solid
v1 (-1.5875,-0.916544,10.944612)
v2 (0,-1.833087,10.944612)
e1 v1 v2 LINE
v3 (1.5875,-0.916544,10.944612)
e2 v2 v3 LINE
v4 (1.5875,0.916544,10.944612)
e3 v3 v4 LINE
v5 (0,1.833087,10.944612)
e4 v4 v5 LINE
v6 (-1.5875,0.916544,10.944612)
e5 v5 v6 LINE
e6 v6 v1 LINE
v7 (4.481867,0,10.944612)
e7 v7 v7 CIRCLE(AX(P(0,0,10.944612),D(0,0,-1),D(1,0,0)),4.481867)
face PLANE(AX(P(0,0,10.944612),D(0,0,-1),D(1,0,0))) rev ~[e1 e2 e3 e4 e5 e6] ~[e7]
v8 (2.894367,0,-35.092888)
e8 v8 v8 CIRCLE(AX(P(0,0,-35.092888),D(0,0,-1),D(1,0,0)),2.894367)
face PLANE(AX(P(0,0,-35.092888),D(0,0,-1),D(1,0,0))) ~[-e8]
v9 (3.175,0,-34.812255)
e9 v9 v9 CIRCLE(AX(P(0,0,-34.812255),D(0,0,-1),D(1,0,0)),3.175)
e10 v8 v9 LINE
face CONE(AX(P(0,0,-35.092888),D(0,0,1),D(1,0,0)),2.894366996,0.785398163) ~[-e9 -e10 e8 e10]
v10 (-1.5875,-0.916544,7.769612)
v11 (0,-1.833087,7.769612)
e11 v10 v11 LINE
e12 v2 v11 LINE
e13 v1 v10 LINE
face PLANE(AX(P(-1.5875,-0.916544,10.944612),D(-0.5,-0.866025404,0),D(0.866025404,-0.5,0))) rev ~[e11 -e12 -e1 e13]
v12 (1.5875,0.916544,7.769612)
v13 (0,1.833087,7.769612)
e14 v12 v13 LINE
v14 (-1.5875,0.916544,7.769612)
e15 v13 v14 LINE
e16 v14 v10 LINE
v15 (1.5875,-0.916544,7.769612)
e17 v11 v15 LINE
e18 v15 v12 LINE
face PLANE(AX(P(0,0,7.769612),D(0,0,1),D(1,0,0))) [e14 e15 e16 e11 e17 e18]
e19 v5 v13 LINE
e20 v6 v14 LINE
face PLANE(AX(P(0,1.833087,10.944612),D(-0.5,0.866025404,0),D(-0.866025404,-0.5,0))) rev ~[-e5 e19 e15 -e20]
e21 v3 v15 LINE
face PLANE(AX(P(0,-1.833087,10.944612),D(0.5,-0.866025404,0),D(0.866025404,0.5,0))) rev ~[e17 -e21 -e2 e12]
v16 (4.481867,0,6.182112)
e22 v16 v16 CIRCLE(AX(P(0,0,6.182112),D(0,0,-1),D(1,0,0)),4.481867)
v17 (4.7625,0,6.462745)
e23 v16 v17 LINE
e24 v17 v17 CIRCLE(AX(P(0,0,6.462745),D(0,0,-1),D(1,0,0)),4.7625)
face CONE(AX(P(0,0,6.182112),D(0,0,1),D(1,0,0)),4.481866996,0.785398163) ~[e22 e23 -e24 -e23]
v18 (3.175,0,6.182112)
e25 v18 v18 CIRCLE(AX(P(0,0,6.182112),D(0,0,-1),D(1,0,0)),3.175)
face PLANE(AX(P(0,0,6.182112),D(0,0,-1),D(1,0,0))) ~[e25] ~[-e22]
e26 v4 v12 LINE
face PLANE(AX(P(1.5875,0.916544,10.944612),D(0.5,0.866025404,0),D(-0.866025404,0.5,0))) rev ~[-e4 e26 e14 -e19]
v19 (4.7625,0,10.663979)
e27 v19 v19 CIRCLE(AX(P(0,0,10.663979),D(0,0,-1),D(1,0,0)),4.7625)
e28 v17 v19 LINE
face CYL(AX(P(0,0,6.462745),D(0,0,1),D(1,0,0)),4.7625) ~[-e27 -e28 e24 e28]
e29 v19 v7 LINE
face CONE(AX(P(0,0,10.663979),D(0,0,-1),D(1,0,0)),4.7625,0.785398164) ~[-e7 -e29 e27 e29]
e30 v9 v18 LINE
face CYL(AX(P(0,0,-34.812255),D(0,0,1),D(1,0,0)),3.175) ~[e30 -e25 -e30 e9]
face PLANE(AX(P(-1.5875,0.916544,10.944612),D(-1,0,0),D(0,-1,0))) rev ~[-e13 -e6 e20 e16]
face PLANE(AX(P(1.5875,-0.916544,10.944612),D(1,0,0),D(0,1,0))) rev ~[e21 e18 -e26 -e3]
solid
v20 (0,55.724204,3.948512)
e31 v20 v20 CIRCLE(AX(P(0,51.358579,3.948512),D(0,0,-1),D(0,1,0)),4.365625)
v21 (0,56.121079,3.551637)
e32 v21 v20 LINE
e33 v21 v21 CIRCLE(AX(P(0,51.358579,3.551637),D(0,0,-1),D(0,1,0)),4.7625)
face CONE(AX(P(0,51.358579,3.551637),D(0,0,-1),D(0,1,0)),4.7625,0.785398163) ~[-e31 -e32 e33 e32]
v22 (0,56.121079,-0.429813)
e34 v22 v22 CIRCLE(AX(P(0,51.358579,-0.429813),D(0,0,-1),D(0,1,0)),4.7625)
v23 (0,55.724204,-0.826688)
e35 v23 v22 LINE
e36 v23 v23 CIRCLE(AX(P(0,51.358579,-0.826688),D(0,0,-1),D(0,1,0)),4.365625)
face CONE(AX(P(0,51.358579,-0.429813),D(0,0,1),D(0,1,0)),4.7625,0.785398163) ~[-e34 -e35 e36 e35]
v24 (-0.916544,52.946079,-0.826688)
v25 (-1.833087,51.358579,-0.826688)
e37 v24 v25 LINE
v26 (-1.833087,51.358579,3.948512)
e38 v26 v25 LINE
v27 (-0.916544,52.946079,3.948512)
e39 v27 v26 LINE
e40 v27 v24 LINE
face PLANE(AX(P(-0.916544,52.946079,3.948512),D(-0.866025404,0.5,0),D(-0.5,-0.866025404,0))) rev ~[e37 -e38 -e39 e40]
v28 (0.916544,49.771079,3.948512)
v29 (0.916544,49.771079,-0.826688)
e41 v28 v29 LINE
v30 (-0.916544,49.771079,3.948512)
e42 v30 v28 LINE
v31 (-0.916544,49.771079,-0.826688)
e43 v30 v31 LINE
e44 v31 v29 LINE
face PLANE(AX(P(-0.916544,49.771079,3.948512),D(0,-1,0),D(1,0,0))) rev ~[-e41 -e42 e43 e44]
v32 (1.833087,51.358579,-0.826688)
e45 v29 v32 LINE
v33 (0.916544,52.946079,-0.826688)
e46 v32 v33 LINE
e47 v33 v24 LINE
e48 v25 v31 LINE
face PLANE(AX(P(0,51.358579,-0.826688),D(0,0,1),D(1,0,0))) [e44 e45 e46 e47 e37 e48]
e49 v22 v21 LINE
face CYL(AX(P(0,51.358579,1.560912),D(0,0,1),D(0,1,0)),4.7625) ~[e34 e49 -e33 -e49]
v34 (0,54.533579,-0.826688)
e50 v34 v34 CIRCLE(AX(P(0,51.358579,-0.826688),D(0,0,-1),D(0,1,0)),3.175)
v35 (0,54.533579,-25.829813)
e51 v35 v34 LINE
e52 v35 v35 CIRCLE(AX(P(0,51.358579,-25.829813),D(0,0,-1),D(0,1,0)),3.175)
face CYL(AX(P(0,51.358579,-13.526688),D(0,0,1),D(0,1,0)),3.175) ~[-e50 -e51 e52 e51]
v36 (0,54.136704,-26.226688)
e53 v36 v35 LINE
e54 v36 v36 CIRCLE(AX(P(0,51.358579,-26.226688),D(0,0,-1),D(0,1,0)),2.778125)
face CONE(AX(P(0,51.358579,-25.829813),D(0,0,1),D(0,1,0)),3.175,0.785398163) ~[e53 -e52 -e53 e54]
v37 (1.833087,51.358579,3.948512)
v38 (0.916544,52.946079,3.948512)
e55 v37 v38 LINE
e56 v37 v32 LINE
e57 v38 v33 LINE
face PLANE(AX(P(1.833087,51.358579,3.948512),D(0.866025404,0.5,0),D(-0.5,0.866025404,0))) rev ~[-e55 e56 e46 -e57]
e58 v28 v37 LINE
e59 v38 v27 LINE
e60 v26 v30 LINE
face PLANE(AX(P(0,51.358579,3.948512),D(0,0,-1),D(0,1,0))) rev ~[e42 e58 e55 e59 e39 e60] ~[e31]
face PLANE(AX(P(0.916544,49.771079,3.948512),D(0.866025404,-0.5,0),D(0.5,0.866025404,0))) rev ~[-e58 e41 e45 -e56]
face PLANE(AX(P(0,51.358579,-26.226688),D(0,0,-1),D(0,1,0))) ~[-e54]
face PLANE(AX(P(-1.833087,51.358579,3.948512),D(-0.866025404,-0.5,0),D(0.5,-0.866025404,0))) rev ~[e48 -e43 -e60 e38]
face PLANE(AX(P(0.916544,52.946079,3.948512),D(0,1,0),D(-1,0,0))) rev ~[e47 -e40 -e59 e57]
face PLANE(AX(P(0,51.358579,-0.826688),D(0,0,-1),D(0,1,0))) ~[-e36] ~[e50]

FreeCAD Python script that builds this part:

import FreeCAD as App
import Part
import Sketcher
from FreeCAD import Vector
Q = App.Units.Quantity


def edges_at(feature, points):
    """Names of the edges that pass closest to the given points."""
    edges = feature.Shape.Edges
    near = lambda p: min(range(len(edges)), key=lambda i: edges[i].distToShape(Part.Vertex(*p))[0])
    return sorted({f"Edge{near(p) + 1}" for p in points})

doc = App.newDocument("Part")
params = doc.addObject("Spreadsheet::Sheet", "Params")
for row, (alias, value) in enumerate([
    ("sketch1_height", "1.8125 in"),
    ("sketch1_length", "0.015625 in"),
    ("revolution_angle", "360 deg"),
    ("pocket1_length", "0.125 in"),
    ("sketch3_height", "1 in"),
    ("sketch3_width", "0.125 in"),
    ("sketch3_width2", "0.0625 in"),
    ("sketch3_height2", "1.188 in"),
    ("revolution2_angle", "360 deg"),
    ("chamfer_size", "0.015625 in"),
    ("pocket2_length", "0.188 in"),
], start=1):
    params.set(f"A{row}", alias)
    params.set(f"B{row}", "=" + value)
    params.setAlias(f"B{row}", alias)

body = doc.addObject("PartDesign::Body", "Body")

# Sketch on XZ plane
sketch1 = body.newObject("Sketcher::SketchObject", "Sketch")
sketch1.AttachmentSupport = (doc.getObject("XZ_Plane"), [""])
sketch1.MapMode = "FlatFace"
sketch1.addGeometry([
    Part.LineSegment(Vector(0, 10.944612, 0), Vector(0, -35.092888, 0)),  # 0
    Part.LineSegment(Vector(0, -35.092888, 0), Vector(2.894367, -35.092888, 0)),  # 1
    Part.LineSegment(Vector(2.894367, -35.092888, 0), Vector(3.175, -34.812255, 0)),  # 2
    Part.LineSegment(Vector(3.175, -34.812255, 0), Vector(3.175, 6.182112, 0)),  # 3
    Part.LineSegment(Vector(3.175, 6.182112, 0), Vector(4.481867, 6.182112, 0)),  # 4
    Part.LineSegment(Vector(4.481867, 6.182112, 0), Vector(4.7625, 6.462745, 0)),  # 5
    Part.LineSegment(Vector(4.7625, 6.462745, 0), Vector(4.7625, 10.663979, 0)),  # 6
    Part.LineSegment(Vector(4.7625, 10.663979, 0), Vector(4.481867, 10.944612, 0)),  # 7
    Part.LineSegment(Vector(4.481867, 10.944612, 0), Vector(0, 10.944612, 0)),  # 8
], False)
sketch1.addConstraint([
    Sketcher.Constraint("Coincident", 0, 2, 1, 1),
    Sketcher.Constraint("Coincident", 1, 2, 2, 1),
    Sketcher.Constraint("Coincident", 2, 2, 3, 1),
    Sketcher.Constraint("Coincident", 3, 2, 4, 1),
    Sketcher.Constraint("Coincident", 4, 2, 5, 1),
    Sketcher.Constraint("Coincident", 5, 2, 6, 1),
    Sketcher.Constraint("Coincident", 6, 2, 7, 1),
    Sketcher.Constraint("Coincident", 7, 2, 8, 1),
    Sketcher.Constraint("Coincident", 8, 2, 0, 1),
    Sketcher.Constraint("Vertical", 0),
    Sketcher.Constraint("Horizontal", 1),
    Sketcher.Constraint("Vertical", 3),
    Sketcher.Constraint("Horizontal", 4),
    Sketcher.Constraint("Vertical", 6),
    Sketcher.Constraint("Horizontal", 8),
    Sketcher.Constraint("PointOnObject", 0, 2, -2),
    Sketcher.Constraint("Parallel", 2, 5),
    Sketcher.Constraint("Perpendicular", 5, 7),
    Sketcher.Constraint("Vertical", 4, 2, 7, 2),
    Sketcher.Constraint("Equal", 2, 5),
    Sketcher.Constraint("Equal", 5, 7),
    Sketcher.Constraint("DistanceY", 0, 2, 0, 1, Q("1.8125 in")),
    Sketcher.Constraint("Distance", 2, Q("0.015625 in")),
    Sketcher.Constraint("DistanceX", -1, 1, 2, 2, Q("0.125 in")),
    Sketcher.Constraint("DistanceX", -1, 1, 5, 2, Q("0.1875 in")),
    Sketcher.Constraint("DistanceY", 1, 2, 3, 2, Q("1.625 in")),
    Sketcher.Constraint("DistanceY", 0, 2, -1, 1, 35.092888),
])
sketch1.setExpression("Constraints[21]", "Params.sketch1_height")
sketch1.setExpression("Constraints[22]", "Params.sketch1_length")
revolution = body.newObject("PartDesign::Revolution", "Revolution")
revolution.Profile = sketch1
revolution.ReferenceAxis = (sketch1, ["V_Axis"])
revolution.setExpression("Angle", "Params.revolution_angle")

# Sketch on XY plane
sketch2 = body.newObject("Sketcher::SketchObject", "Sketch001")
sketch2.AttachmentSupport = (doc.getObject("XY_Plane"), [""])
sketch2.MapMode = "FlatFace"
sketch2.AttachmentOffset = App.Placement(Vector(0, 0, 10.944612), App.Rotation())
sketch2.addGeometry([
    Part.LineSegment(Vector(1.5875, 0.916544, 0), Vector(0, 1.833087, 0)),  # 0
    Part.LineSegment(Vector(0, 1.833087, 0), Vector(-1.5875, 0.916544, 0)),  # 1
    Part.LineSegment(Vector(-1.5875, 0.916544, 0), Vector(-1.5875, -0.916544, 0)),  # 2
    Part.LineSegment(Vector(-1.5875, -0.916544, 0), Vector(0, -1.833087, 0)),  # 3
    Part.LineSegment(Vector(0, -1.833087, 0), Vector(1.5875, -0.916544, 0)),  # 4
    Part.LineSegment(Vector(1.5875, -0.916544, 0), Vector(1.5875, 0.916544, 0)),  # 5
], False)
sketch2.addConstraint([
    Sketcher.Constraint("Coincident", 0, 2, 1, 1),
    Sketcher.Constraint("Coincident", 1, 2, 2, 1),
    Sketcher.Constraint("Coincident", 2, 2, 3, 1),
    Sketcher.Constraint("Coincident", 3, 2, 4, 1),
    Sketcher.Constraint("Coincident", 4, 2, 5, 1),
    Sketcher.Constraint("Coincident", 5, 2, 0, 1),
    Sketcher.Constraint("Vertical", 2),
    Sketcher.Constraint("Vertical", 5),
    Sketcher.Constraint("Symmetric", 0, 2, 3, 2, -1, 1),
    Sketcher.Constraint("Symmetric", 1, 2, 4, 2, -1, 1),
    Sketcher.Constraint("PointOnObject", 0, 2, -2),
    Sketcher.Constraint("Parallel", 0, 3),
    Sketcher.Constraint("Horizontal", 2, 2, 4, 2),
    Sketcher.Constraint("Angle", 0, Q("150 deg")),
    Sketcher.Constraint("DistanceX", 1, 2, -1, 1, Q("0.0625 in")),
    Sketcher.Constraint("DistanceY", 2, 2, 2, 1, 1.833087),
])
pocket1 = body.newObject("PartDesign::Pocket", "Pocket")
pocket1.Profile = sketch2
pocket1.setExpression("Length", "Params.pocket1_length")
body2 = doc.addObject("PartDesign::Body", "Body001")

# Sketch on YZ plane
sketch3 = body2.newObject("Sketcher::SketchObject", "Sketch002")
sketch3.AttachmentSupport = (doc.getObject("YZ_Plane001"), [""])
sketch3.MapMode = "FlatFace"
sketch3.addGeometry([
    Part.LineSegment(Vector(51.358579, 3.948512, 0), Vector(51.358579, -26.226688, 0)),  # 0
    Part.LineSegment(Vector(51.358579, -26.226688, 0), Vector(54.533579, -26.226688, 0)),  # 1
    Part.LineSegment(Vector(54.533579, -26.226688, 0), Vector(54.533579, -0.826688, 0)),  # 2
    Part.LineSegment(Vector(54.533579, -0.826688, 0), Vector(56.121079, -0.826688, 0)),  # 3
    Part.LineSegment(Vector(56.121079, -0.826688, 0), Vector(56.121079, 3.948512, 0)),  # 4
    Part.LineSegment(Vector(56.121079, 3.948512, 0), Vector(51.358579, 3.948512, 0)),  # 5
], False)
sketch3.addGeometry(Part.LineSegment(Vector(51.358579, 3.948512, 0), Vector(51.358579, -26.226688, 0)), True)  # axis
sketch3.addConstraint([
    Sketcher.Constraint("Coincident", 0, 2, 1, 1),
    Sketcher.Constraint("Coincident", 1, 2, 2, 1),
    Sketcher.Constraint("Coincident", 2, 2, 3, 1),
    Sketcher.Constraint("Coincident", 3, 2, 4, 1),
    Sketcher.Constraint("Coincident", 4, 2, 5, 1),
    Sketcher.Constraint("Coincident", 5, 2, 0, 1),
    Sketcher.Constraint("Vertical", 0),
    Sketcher.Constraint("Horizontal", 1),
    Sketcher.Constraint("Vertical", 2),
    Sketcher.Constraint("Horizontal", 3),
    Sketcher.Constraint("Vertical", 4),
    Sketcher.Constraint("Horizontal", 5),
    Sketcher.Constraint("Vertical", 6),
    Sketcher.Constraint("Coincident", 6, 1, 5, 2),
    Sketcher.Constraint("Horizontal", 1, 2, 6, 2),
    Sketcher.Constraint("DistanceY", 2, 1, 2, 2, Q("1 in")),
    Sketcher.Constraint("DistanceX", 1, 1, 1, 2, Q("0.125 in")),
    Sketcher.Constraint("DistanceX", 3, 1, 3, 2, Q("0.0625 in")),
    Sketcher.Constraint("DistanceY", 0, 2, 0, 1, Q("1.188 in")),
    Sketcher.Constraint("DistanceX", -1, 1, 0, 2, 51.358579),
    Sketcher.Constraint("DistanceY", 0, 2, -1, 1, 26.226688),
])
sketch3.setExpression("Constraints[15]", "Params.sketch3_height")
sketch3.setExpression("Constraints[16]", "Params.sketch3_width")
sketch3.setExpression("Constraints[17]", "Params.sketch3_width2")
sketch3.setExpression("Constraints[18]", "Params.sketch3_height2")
revolution2 = body2.newObject("PartDesign::Revolution", "Revolution001")
revolution2.Profile = sketch3
revolution2.ReferenceAxis = (sketch3, ["Axis0"])
revolution2.setExpression("Angle", "Params.revolution2_angle")
doc.recompute()

chamfer = body2.newObject("PartDesign::Chamfer", "Chamfer")
chamfer.Base = (revolution2, edges_at(revolution2, [(0, 46.596, 3.949), (0, 46.596, -0.827), (0, 48.184, -26.227)]))
chamfer.setExpression("Size", "Params.chamfer_size")

# Sketch on XY plane
sketch4 = body2.newObject("Sketcher::SketchObject", "Sketch003")
sketch4.AttachmentSupport = (doc.getObject("XY_Plane001"), [""])
sketch4.MapMode = "FlatFace"
sketch4.AttachmentOffset = App.Placement(Vector(0, 0, 3.948512), App.Rotation())
sketch4.addGeometry([
    Part.LineSegment(Vector(0.916544, 52.946079, 0), Vector(-0.916544, 52.946079, 0)),  # 0
    Part.LineSegment(Vector(-0.916544, 52.946079, 0), Vector(-1.833087, 51.358579, 0)),  # 1
    Part.LineSegment(Vector(-1.833087, 51.358579, 0), Vector(-0.916544, 49.771079, 0)),  # 2
    Part.LineSegment(Vector(-0.916544, 49.771079, 0), Vector(0.916544, 49.771079, 0)),  # 3
    Part.LineSegment(Vector(0.916544, 49.771079, 0), Vector(1.833087, 51.358579, 0)),  # 4
    Part.LineSegment(Vector(1.833087, 51.358579, 0), Vector(0.916544, 52.946079, 0)),  # 5
], False)
sketch4.addConstraint([
    Sketcher.Constraint("Coincident", 0, 2, 1, 1),
    Sketcher.Constraint("Coincident", 1, 2, 2, 1),
    Sketcher.Constraint("Coincident", 2, 2, 3, 1),
    Sketcher.Constraint("Coincident", 3, 2, 4, 1),
    Sketcher.Constraint("Coincident", 4, 2, 5, 1),
    Sketcher.Constraint("Coincident", 5, 2, 0, 1),
    Sketcher.Constraint("Horizontal", 0),
    Sketcher.Constraint("Horizontal", 3),
    Sketcher.Constraint("Symmetric", 1, 2, 4, 2, -2),
    Sketcher.Constraint("Parallel", 1, 4),
    Sketcher.Constraint("Parallel", 2, 5),
    Sketcher.Constraint("Vertical", 0, 2, 2, 2),
    Sketcher.Constraint("Vertical", 3, 2, 5, 2),
    Sketcher.Constraint("Angle", 1, Q("-120 deg")),
    Sketcher.Constraint("DistanceY", 1, 2, 0, 2, Q("0.0625 in")),
    Sketcher.Constraint("DistanceX", 0, 2, 0, 1, 1.833087),
    Sketcher.Constraint("DistanceY", -1, 1, 0, 2, 52.946079),
])
pocket2 = body2.newObject("PartDesign::Pocket", "Pocket001")
pocket2.Profile = sketch4
pocket2.setExpression("Length", "Params.pocket2_length")

doc.recompute()
